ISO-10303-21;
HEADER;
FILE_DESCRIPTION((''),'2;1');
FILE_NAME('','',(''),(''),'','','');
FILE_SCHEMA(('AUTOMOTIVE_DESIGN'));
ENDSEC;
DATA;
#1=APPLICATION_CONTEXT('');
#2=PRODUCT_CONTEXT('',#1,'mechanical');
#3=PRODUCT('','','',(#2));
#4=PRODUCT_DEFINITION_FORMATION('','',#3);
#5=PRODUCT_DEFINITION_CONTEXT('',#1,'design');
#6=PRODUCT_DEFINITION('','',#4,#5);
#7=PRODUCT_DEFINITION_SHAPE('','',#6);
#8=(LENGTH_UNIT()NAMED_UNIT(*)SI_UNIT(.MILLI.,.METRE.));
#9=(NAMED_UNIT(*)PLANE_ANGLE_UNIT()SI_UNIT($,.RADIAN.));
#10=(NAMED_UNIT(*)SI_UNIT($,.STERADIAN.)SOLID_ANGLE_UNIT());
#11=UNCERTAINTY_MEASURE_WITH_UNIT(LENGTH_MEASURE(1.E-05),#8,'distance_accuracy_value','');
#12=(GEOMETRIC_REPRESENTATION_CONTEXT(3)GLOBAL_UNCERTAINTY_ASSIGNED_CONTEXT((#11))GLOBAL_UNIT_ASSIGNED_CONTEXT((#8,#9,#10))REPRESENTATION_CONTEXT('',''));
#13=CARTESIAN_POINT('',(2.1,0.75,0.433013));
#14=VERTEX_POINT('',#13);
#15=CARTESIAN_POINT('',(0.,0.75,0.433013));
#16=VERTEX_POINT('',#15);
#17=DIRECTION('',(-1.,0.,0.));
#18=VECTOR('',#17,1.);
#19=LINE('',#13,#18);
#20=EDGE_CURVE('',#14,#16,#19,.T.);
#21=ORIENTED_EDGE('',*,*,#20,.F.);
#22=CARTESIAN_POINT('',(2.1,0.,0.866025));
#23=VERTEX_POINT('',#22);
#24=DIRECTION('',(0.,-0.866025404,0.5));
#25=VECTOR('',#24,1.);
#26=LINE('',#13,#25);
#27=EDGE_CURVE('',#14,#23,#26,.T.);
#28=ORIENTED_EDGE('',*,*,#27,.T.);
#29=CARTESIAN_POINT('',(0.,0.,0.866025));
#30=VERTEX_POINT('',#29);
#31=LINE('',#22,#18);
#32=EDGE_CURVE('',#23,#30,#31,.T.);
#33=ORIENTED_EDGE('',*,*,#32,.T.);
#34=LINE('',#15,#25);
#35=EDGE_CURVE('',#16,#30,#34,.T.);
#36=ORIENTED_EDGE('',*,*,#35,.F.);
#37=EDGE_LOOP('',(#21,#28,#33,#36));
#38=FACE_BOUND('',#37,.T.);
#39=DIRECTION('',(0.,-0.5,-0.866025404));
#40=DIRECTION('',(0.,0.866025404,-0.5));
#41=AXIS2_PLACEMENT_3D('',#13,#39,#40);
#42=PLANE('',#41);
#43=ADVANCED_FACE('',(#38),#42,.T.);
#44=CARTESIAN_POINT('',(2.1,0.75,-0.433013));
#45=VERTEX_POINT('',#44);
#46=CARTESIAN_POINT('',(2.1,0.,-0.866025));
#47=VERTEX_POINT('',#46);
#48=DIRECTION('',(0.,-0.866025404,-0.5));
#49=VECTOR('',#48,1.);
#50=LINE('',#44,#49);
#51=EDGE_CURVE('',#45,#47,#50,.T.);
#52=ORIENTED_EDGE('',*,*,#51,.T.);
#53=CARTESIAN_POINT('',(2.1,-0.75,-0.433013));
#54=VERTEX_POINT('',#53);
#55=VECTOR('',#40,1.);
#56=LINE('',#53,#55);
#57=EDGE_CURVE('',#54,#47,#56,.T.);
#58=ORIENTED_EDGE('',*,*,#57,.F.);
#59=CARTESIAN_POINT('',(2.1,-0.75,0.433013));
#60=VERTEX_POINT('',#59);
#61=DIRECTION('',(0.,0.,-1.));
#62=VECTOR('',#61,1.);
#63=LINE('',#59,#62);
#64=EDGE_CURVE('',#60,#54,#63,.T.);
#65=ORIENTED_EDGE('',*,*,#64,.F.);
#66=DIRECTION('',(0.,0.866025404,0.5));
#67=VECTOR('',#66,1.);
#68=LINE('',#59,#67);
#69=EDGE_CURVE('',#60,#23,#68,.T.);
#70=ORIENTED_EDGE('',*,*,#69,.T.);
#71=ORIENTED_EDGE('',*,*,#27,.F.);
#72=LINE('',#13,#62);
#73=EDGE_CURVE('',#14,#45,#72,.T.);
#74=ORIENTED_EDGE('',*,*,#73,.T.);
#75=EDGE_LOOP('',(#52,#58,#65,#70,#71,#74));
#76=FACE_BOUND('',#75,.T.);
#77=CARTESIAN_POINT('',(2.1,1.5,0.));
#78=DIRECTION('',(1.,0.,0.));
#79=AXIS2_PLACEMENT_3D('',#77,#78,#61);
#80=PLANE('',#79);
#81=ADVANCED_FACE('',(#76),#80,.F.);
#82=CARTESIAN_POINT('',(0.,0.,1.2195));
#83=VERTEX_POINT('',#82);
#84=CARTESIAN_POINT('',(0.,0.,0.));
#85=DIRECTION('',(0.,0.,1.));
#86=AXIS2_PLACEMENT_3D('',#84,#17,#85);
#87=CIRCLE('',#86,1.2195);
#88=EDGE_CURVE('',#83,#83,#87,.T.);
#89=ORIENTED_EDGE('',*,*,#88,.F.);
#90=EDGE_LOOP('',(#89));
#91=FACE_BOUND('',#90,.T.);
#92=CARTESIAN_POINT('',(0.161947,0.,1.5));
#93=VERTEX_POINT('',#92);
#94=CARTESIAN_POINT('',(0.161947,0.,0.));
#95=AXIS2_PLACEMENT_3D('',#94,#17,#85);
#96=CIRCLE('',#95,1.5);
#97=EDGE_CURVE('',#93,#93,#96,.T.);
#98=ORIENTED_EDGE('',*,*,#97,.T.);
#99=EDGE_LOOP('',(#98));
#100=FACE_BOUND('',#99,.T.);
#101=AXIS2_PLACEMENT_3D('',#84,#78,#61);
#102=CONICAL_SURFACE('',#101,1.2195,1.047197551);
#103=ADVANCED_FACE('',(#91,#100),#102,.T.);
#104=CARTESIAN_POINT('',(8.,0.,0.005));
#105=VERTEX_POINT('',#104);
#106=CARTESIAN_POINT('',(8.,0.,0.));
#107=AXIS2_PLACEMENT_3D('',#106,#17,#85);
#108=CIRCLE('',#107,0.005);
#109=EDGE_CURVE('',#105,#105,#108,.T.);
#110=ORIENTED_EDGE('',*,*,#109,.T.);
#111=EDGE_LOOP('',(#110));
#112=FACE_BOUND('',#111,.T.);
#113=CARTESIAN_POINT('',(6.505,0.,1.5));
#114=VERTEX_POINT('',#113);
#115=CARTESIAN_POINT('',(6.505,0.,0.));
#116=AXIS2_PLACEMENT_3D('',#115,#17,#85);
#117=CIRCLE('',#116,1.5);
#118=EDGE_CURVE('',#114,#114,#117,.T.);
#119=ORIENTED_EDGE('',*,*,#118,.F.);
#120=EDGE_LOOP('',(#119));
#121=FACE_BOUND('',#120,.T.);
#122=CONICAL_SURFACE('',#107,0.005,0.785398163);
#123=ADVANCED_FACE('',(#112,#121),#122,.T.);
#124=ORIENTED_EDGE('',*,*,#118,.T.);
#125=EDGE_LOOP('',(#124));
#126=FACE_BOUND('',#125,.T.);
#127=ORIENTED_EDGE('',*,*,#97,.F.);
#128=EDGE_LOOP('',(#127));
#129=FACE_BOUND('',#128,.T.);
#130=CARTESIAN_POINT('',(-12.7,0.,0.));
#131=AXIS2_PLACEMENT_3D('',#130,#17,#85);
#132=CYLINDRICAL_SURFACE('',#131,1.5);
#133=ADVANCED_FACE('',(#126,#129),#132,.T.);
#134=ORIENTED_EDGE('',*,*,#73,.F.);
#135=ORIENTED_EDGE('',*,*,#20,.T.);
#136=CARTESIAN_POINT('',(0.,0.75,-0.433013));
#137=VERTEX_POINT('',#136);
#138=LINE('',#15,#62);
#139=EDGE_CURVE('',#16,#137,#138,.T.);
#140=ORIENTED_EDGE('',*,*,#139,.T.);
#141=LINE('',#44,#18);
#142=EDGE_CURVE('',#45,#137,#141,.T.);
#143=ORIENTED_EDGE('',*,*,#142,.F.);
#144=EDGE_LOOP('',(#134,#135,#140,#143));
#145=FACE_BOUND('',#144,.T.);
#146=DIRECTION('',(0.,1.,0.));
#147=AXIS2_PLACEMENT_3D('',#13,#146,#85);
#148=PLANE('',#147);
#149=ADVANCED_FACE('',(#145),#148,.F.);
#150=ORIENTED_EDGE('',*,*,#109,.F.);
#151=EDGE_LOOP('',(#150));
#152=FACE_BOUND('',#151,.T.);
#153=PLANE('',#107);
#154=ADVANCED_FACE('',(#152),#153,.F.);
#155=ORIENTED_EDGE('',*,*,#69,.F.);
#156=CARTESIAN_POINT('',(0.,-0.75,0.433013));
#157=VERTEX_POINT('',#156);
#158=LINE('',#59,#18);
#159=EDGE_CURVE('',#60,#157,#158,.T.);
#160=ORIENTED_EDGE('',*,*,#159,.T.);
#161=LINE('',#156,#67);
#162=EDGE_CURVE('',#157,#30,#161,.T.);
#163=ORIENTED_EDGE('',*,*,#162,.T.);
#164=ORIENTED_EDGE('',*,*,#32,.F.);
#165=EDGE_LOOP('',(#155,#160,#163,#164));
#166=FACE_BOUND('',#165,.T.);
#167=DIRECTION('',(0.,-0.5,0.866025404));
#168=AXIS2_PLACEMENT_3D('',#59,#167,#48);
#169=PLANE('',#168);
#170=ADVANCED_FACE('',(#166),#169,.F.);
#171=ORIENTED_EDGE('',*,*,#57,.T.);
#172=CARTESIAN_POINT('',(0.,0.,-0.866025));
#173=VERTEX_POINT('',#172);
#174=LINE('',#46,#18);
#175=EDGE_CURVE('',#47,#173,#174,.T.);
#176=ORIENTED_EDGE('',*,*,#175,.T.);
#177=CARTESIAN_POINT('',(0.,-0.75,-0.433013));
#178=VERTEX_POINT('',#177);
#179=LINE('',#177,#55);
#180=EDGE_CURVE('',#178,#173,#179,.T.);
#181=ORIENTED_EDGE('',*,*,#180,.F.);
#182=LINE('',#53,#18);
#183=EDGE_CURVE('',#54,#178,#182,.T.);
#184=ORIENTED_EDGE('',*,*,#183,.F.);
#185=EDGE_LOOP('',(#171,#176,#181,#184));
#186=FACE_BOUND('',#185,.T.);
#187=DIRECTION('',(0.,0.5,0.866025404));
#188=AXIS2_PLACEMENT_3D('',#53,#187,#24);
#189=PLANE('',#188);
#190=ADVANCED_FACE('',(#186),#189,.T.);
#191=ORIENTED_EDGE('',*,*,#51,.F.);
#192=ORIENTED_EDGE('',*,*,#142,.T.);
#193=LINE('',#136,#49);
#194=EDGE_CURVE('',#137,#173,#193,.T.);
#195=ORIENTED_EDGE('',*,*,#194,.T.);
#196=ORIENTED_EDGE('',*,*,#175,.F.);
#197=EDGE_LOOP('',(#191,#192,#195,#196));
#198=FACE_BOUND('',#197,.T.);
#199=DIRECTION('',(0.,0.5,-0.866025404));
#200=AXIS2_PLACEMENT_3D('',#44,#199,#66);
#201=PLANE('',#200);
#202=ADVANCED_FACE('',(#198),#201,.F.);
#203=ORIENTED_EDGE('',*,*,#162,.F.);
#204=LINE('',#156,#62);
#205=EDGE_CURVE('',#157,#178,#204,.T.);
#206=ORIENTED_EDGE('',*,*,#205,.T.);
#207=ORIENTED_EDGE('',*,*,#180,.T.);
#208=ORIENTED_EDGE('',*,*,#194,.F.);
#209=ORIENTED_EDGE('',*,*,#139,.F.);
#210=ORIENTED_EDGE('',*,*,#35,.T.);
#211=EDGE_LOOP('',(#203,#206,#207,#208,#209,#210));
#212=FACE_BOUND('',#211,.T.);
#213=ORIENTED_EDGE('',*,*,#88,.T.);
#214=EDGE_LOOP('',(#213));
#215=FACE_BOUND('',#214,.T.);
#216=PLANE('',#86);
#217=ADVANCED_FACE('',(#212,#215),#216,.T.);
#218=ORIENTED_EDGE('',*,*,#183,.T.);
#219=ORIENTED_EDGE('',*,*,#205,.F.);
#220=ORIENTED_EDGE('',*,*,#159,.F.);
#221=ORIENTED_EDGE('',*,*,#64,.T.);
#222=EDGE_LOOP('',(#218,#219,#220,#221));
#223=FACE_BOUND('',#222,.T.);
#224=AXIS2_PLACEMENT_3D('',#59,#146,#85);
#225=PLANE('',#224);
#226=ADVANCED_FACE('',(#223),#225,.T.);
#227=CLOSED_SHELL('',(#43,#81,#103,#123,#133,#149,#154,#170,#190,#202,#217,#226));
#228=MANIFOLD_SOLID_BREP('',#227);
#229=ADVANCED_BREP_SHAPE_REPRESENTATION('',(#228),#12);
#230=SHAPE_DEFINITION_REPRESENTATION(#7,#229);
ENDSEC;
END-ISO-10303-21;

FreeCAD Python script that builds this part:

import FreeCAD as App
import Part
import Sketcher
Q = App.Units.Quantity


def add_polygon(sketch, points):
    """Adds a closed chain of lines whose ends are joined by coincident constraints."""
    first, n = sketch.GeometryCount, len(points)
    for a, b in zip(points, points[1:] + points[:1]):
        sketch.addGeometry(Part.LineSegment(App.Vector(*a, 0), App.Vector(*b, 0)), False)
    for i in range(n):
        sketch.addConstraint(Sketcher.Constraint("Coincident", first + i, 2, first + (i + 1) % n, 1))

doc = App.newDocument("Part")
body = doc.addObject("PartDesign::Body", "Body")

# Sketch on XY plane
sketch1 = body.newObject("Sketcher::SketchObject", "Sketch")
sketch1.AttachmentSupport = (doc.getObject("XY_Plane"), [""])
sketch1.MapMode = "FlatFace"
add_polygon(sketch1, [(0, 1.2195), (0, 0), (8, 0), (8, 0.005), (6.505, 1.5), (0.161947, 1.5)])  # lines 0-5
sketch1.addConstraint([
    Sketcher.Constraint("Vertical", 0),
    Sketcher.Constraint("Horizontal", 1),
    Sketcher.Constraint("Vertical", 2),
    Sketcher.Constraint("Horizontal", 4),
    Sketcher.Constraint("Coincident", 0, 2, -1, 1),
    Sketcher.Constraint("DistanceX", 1, 1, 1, 2, 8.0),
    Sketcher.Constraint("Angle", 3, Q("135 deg")),
    Sketcher.Constraint("Angle", 5, Q("-120 deg")),
    Sketcher.Constraint("DistanceY", -1, 1, 3, 2, 1.5),
    Sketcher.Constraint("DistanceY", 2, 1, 2, 2, 0.005),
    Sketcher.Constraint("DistanceY", 0, 2, 0, 1, 1.2195),
])
revolution = body.newObject("PartDesign::Revolution", "Revolution")
revolution.Profile = sketch1
revolution.ReferenceAxis = (sketch1, ["H_Axis"])
revolution.Angle = 360

# Sketch on YZ plane
sketch2 = body.newObject("Sketcher::SketchObject", "Sketch001")
sketch2.AttachmentSupport = (doc.getObject("YZ_Plane"), [""])
sketch2.MapMode = "FlatFace"
add_polygon(sketch2, [(0.75, 0.433013), (0.75, -0.433013), (0, -0.866025), (-0.75, -0.433013), (-0.75, 0.433013), (0, 0.866025)])  # lines 0-5
sketch2.addConstraint([
    Sketcher.Constraint("Vertical", 0),
    Sketcher.Constraint("Vertical", 3),
    Sketcher.Constraint("Symmetric", 0, 2, 3, 2, -1, 1),
    Sketcher.Constraint("Symmetric", 1, 2, 4, 2, -1, 1),
    Sketcher.Constraint("PointOnObject", 1, 2, -2),
    Sketcher.Constraint("Parallel", 2, 5),
    Sketcher.Constraint("Horizontal", 0, 2, 2, 2),
    Sketcher.Constraint("Angle", 1, Q("-150 deg")),
    Sketcher.Constraint("DistanceX", 2, 2, 0, 2, 1.5),
    Sketcher.Constraint("DistanceY", 0, 2, 0, 1, 0.866025),
])
pocket1 = body.newObject("PartDesign::Pocket", "Pocket")
pocket1.Profile = sketch2
pocket1.Length = 2.1
pocket1.Reversed = True

doc.recompute()
